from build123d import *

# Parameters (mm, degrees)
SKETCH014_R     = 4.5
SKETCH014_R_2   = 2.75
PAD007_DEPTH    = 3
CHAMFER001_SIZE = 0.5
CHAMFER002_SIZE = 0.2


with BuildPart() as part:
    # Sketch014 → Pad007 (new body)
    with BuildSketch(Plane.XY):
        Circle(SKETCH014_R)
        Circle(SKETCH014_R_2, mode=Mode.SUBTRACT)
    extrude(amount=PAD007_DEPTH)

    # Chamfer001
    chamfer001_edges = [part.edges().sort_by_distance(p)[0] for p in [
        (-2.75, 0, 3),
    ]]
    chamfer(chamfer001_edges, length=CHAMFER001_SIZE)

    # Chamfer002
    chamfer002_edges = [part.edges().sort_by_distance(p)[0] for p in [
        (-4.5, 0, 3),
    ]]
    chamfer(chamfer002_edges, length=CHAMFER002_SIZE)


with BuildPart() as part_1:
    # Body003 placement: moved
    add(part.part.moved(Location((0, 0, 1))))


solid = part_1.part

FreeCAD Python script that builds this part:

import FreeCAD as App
import Part
import Sketcher
Q = App.Units.Quantity


def edges_at(feature, points):
    """Names of the edges that pass closest to the given points."""
    edges = feature.Shape.Edges
    near = lambda p: min(range(len(edges)), key=lambda i: edges[i].distToShape(Part.Vertex(*p))[0])
    return sorted({f"Edge{near(p) + 1}" for p in points})

doc = App.newDocument("Part")
body = doc.addObject("PartDesign::Body", "Body")

# Sketch on XY plane
sketch1 = body.newObject("Sketcher::SketchObject", "Sketch")
sketch1.AttachmentSupport = (doc.getObject("XY_Plane"), [""])
sketch1.MapMode = "FlatFace"
sketch1.addGeometry([
    Part.Circle(App.Vector(0, 0, 0), App.Vector(0, 0, 1), 4.5),
    Part.Circle(App.Vector(0, 0, 0), App.Vector(0, 0, 1), 2.8),
], False)
sketch1.addConstraint([
    Sketcher.Constraint("Coincident", 0, 3, -1, 1),
    Sketcher.Constraint("Coincident", 1, 3, -1, 1),
    Sketcher.Constraint("Diameter", 0, Q("9 mm")),
    Sketcher.Constraint("Diameter", 1, Q("5.5 mm")),
])
pad1 = body.newObject("PartDesign::Pad", "Pad")
pad1.Profile = sketch1
pad1.Length = 3
doc.recompute()

chamfer = body.newObject("PartDesign::Chamfer", "Chamfer")
chamfer.Base = (pad1, edges_at(pad1, [(-2.75, 0, 3)]))
chamfer.Size = 0.5
doc.recompute()

chamfer2 = body.newObject("PartDesign::Chamfer", "Chamfer001")
chamfer2.Base = (chamfer, edges_at(chamfer, [(-4.5, 0, 3)]))
chamfer2.Size = 0.2
body2 = doc.addObject("PartDesign::Body", "Body001")
doc.recompute()

body.Placement = App.Placement(App.Vector(0, 0, 1), App.Rotation(App.Vector(0, 0, 1), 0))
boolean = body2.newObject("PartDesign::Boolean", "Boolean")
boolean.Type = "Fuse"
boolean.addObjects([body])

doc.recompute()
